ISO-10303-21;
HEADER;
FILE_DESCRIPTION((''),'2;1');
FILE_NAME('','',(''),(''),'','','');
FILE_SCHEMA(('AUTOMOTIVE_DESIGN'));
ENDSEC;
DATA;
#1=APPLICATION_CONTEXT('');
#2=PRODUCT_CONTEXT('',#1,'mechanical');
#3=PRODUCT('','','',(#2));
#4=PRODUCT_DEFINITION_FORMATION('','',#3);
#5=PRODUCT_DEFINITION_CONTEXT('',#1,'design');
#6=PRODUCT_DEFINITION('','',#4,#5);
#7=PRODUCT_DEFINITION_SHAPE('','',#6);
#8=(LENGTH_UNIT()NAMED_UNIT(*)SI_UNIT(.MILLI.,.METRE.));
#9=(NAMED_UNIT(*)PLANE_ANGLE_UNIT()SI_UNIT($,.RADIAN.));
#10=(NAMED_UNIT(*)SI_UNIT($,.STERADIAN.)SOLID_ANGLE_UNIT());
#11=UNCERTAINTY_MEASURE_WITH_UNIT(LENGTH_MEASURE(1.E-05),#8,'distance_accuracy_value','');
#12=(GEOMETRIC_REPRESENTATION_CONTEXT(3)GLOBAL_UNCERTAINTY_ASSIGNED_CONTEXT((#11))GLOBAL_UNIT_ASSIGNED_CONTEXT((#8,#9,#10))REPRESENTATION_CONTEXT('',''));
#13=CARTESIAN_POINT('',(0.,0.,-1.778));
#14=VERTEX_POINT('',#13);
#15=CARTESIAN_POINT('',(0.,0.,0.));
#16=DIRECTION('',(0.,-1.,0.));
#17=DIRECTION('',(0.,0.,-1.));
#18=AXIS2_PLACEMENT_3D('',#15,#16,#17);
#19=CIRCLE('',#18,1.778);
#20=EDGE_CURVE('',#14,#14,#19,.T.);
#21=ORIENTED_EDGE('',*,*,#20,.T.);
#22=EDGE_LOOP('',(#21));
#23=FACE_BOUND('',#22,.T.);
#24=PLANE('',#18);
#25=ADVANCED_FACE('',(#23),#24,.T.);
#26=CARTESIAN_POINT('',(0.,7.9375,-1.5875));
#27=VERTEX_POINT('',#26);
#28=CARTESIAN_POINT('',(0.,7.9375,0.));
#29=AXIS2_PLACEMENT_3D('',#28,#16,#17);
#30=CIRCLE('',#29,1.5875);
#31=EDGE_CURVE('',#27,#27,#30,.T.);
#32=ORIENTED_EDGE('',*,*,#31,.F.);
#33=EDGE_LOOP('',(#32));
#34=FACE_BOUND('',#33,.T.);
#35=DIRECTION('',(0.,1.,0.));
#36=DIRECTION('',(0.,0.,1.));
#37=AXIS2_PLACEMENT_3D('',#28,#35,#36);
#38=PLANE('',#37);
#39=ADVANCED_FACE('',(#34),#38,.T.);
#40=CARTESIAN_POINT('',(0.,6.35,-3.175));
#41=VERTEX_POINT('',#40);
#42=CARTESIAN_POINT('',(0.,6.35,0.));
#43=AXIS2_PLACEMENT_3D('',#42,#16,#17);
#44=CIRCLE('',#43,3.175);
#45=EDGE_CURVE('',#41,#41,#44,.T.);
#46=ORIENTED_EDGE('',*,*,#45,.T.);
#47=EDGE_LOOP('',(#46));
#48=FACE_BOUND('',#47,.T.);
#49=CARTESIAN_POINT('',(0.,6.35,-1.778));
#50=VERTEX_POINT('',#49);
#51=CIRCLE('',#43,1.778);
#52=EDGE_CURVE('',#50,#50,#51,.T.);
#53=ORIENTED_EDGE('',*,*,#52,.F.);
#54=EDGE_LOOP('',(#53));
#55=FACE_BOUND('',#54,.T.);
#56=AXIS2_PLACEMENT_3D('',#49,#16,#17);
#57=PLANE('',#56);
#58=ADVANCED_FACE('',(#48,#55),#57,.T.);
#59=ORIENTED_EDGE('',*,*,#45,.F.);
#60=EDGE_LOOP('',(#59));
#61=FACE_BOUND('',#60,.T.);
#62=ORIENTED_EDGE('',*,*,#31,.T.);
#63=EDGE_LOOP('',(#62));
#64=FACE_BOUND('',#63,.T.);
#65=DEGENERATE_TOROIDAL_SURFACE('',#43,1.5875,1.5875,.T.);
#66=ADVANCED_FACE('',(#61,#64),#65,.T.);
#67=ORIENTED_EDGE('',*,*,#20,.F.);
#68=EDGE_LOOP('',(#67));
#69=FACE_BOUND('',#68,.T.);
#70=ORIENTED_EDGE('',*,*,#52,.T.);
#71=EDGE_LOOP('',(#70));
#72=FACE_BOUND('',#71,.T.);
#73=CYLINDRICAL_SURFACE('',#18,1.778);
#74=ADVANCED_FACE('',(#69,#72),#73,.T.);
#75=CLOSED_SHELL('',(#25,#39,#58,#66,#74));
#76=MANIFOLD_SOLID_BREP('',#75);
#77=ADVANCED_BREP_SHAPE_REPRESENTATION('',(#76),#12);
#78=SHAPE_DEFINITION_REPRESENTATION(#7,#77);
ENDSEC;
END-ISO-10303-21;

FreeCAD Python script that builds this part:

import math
import FreeCAD as App
import Part
import Sketcher
Q = App.Units.Quantity

doc = App.newDocument("Part")
body = doc.addObject("PartDesign::Body", "Body")

sketch1 = doc.addObject("Sketcher::SketchObject", "Sketch")
body.addObject(sketch1)
sketch1.AttachmentSupport = (doc.YZ_Plane, [""])
sketch1.MapMode = "FlatFace"
sketch1.addGeometry([
    Part.LineSegment(App.Vector(0, 0, 0), App.Vector(0, -1.778, 0)),
    Part.LineSegment(App.Vector(0, -1.778, 0), App.Vector(6.35, -1.778, 0)),
    Part.LineSegment(App.Vector(6.35, -1.778, 0), App.Vector(6.35, -3.175, 0)),
    Part.ArcOfCircle(Part.Circle(App.Vector(6.35, -1.5875, 0), App.Vector(0, 0, 1), 1.5875), math.radians(-90), math.radians(0)),
    Part.LineSegment(App.Vector(7.9375, -1.5875, 0), App.Vector(7.9375, 0, 0)),
    Part.LineSegment(App.Vector(7.9375, 0, 0), App.Vector(0, 0, 0)),
], False)
sketch1.addConstraint([
    Sketcher.Constraint("Coincident", 0, 2, 1, 1),
    Sketcher.Constraint("Coincident", 1, 2, 2, 1),
    Sketcher.Constraint("Coincident", 2, 2, 3, 1),
    Sketcher.Constraint("Tangent", 3, 2, 4, 1),
    Sketcher.Constraint("Coincident", 4, 2, 5, 1),
    Sketcher.Constraint("Coincident", 5, 2, 0, 1),
    Sketcher.Constraint("Vertical", 0),
    Sketcher.Constraint("Horizontal", 1),
    Sketcher.Constraint("Vertical", 2),
    Sketcher.Constraint("Vertical", 4),
    Sketcher.Constraint("Horizontal", 5),
    Sketcher.Constraint("Coincident", 5, 2, -1, 1),
    Sketcher.Constraint("Vertical", 3, 3, 1, 2),
    Sketcher.Constraint("Radius", 3, Q("0.0625 in")),
    Sketcher.Constraint("DistanceX", 1, 1, 1, 2, Q("0.25 in")),
    Sketcher.Constraint("DistanceY", 0, 2, 0, 1, Q("0.07 in")),
    Sketcher.Constraint("DistanceY", 2, 2, 2, 1, Q("0.055 in")),
])
revolution = doc.addObject("PartDesign::Revolution", "Revolution")
body.addObject(revolution)
revolution.Profile = sketch1
revolution.ReferenceAxis = (sketch1, ["H_Axis"])
revolution.Angle = 360

doc.recompute()
